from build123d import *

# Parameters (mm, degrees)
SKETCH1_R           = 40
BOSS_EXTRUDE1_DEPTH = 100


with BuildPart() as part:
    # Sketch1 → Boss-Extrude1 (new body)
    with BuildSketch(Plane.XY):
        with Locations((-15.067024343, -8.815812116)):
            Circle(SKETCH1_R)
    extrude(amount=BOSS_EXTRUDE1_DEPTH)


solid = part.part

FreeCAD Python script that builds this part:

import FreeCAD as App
import Part
import Sketcher

doc = App.newDocument("Part")
params = doc.addObject("Spreadsheet::Sheet", "Params")
for row, (alias, value) in enumerate([
    ("sketch1_diameter", "80 mm"),
    ("pad1_length", "100 mm"),
], start=1):
    params.set(f"A{row}", alias)
    params.set(f"B{row}", "=" + value)
    params.setAlias(f"B{row}", alias)

body = doc.addObject("PartDesign::Body", "Body")

sketch1 = body.newObject("Sketcher::SketchObject", "Sketch")
sketch1.AttachmentSupport = (doc.getObject("XY_Plane"), [""])
sketch1.MapMode = "FlatFace"
sketch1.addGeometry(Part.Circle(App.Vector(-15, -9, 0), App.Vector(0, 0, 1), 40), False)
sketch1.addConstraint(Sketcher.Constraint("Diameter", 0, 80.0))
sketch1.addConstraint(Sketcher.Constraint("DistanceX", 0, 3, -1, 1, 15.067024))
sketch1.addConstraint(Sketcher.Constraint("DistanceY", 0, 3, -1, 1, 8.815812))
sketch1.setExpression("Constraints[0]", "Params.sketch1_diameter")
pad1 = body.newObject("PartDesign::Pad", "Pad")
pad1.Profile = sketch1
pad1.setExpression("Length", "Params.pad1_length")

doc.recompute()
